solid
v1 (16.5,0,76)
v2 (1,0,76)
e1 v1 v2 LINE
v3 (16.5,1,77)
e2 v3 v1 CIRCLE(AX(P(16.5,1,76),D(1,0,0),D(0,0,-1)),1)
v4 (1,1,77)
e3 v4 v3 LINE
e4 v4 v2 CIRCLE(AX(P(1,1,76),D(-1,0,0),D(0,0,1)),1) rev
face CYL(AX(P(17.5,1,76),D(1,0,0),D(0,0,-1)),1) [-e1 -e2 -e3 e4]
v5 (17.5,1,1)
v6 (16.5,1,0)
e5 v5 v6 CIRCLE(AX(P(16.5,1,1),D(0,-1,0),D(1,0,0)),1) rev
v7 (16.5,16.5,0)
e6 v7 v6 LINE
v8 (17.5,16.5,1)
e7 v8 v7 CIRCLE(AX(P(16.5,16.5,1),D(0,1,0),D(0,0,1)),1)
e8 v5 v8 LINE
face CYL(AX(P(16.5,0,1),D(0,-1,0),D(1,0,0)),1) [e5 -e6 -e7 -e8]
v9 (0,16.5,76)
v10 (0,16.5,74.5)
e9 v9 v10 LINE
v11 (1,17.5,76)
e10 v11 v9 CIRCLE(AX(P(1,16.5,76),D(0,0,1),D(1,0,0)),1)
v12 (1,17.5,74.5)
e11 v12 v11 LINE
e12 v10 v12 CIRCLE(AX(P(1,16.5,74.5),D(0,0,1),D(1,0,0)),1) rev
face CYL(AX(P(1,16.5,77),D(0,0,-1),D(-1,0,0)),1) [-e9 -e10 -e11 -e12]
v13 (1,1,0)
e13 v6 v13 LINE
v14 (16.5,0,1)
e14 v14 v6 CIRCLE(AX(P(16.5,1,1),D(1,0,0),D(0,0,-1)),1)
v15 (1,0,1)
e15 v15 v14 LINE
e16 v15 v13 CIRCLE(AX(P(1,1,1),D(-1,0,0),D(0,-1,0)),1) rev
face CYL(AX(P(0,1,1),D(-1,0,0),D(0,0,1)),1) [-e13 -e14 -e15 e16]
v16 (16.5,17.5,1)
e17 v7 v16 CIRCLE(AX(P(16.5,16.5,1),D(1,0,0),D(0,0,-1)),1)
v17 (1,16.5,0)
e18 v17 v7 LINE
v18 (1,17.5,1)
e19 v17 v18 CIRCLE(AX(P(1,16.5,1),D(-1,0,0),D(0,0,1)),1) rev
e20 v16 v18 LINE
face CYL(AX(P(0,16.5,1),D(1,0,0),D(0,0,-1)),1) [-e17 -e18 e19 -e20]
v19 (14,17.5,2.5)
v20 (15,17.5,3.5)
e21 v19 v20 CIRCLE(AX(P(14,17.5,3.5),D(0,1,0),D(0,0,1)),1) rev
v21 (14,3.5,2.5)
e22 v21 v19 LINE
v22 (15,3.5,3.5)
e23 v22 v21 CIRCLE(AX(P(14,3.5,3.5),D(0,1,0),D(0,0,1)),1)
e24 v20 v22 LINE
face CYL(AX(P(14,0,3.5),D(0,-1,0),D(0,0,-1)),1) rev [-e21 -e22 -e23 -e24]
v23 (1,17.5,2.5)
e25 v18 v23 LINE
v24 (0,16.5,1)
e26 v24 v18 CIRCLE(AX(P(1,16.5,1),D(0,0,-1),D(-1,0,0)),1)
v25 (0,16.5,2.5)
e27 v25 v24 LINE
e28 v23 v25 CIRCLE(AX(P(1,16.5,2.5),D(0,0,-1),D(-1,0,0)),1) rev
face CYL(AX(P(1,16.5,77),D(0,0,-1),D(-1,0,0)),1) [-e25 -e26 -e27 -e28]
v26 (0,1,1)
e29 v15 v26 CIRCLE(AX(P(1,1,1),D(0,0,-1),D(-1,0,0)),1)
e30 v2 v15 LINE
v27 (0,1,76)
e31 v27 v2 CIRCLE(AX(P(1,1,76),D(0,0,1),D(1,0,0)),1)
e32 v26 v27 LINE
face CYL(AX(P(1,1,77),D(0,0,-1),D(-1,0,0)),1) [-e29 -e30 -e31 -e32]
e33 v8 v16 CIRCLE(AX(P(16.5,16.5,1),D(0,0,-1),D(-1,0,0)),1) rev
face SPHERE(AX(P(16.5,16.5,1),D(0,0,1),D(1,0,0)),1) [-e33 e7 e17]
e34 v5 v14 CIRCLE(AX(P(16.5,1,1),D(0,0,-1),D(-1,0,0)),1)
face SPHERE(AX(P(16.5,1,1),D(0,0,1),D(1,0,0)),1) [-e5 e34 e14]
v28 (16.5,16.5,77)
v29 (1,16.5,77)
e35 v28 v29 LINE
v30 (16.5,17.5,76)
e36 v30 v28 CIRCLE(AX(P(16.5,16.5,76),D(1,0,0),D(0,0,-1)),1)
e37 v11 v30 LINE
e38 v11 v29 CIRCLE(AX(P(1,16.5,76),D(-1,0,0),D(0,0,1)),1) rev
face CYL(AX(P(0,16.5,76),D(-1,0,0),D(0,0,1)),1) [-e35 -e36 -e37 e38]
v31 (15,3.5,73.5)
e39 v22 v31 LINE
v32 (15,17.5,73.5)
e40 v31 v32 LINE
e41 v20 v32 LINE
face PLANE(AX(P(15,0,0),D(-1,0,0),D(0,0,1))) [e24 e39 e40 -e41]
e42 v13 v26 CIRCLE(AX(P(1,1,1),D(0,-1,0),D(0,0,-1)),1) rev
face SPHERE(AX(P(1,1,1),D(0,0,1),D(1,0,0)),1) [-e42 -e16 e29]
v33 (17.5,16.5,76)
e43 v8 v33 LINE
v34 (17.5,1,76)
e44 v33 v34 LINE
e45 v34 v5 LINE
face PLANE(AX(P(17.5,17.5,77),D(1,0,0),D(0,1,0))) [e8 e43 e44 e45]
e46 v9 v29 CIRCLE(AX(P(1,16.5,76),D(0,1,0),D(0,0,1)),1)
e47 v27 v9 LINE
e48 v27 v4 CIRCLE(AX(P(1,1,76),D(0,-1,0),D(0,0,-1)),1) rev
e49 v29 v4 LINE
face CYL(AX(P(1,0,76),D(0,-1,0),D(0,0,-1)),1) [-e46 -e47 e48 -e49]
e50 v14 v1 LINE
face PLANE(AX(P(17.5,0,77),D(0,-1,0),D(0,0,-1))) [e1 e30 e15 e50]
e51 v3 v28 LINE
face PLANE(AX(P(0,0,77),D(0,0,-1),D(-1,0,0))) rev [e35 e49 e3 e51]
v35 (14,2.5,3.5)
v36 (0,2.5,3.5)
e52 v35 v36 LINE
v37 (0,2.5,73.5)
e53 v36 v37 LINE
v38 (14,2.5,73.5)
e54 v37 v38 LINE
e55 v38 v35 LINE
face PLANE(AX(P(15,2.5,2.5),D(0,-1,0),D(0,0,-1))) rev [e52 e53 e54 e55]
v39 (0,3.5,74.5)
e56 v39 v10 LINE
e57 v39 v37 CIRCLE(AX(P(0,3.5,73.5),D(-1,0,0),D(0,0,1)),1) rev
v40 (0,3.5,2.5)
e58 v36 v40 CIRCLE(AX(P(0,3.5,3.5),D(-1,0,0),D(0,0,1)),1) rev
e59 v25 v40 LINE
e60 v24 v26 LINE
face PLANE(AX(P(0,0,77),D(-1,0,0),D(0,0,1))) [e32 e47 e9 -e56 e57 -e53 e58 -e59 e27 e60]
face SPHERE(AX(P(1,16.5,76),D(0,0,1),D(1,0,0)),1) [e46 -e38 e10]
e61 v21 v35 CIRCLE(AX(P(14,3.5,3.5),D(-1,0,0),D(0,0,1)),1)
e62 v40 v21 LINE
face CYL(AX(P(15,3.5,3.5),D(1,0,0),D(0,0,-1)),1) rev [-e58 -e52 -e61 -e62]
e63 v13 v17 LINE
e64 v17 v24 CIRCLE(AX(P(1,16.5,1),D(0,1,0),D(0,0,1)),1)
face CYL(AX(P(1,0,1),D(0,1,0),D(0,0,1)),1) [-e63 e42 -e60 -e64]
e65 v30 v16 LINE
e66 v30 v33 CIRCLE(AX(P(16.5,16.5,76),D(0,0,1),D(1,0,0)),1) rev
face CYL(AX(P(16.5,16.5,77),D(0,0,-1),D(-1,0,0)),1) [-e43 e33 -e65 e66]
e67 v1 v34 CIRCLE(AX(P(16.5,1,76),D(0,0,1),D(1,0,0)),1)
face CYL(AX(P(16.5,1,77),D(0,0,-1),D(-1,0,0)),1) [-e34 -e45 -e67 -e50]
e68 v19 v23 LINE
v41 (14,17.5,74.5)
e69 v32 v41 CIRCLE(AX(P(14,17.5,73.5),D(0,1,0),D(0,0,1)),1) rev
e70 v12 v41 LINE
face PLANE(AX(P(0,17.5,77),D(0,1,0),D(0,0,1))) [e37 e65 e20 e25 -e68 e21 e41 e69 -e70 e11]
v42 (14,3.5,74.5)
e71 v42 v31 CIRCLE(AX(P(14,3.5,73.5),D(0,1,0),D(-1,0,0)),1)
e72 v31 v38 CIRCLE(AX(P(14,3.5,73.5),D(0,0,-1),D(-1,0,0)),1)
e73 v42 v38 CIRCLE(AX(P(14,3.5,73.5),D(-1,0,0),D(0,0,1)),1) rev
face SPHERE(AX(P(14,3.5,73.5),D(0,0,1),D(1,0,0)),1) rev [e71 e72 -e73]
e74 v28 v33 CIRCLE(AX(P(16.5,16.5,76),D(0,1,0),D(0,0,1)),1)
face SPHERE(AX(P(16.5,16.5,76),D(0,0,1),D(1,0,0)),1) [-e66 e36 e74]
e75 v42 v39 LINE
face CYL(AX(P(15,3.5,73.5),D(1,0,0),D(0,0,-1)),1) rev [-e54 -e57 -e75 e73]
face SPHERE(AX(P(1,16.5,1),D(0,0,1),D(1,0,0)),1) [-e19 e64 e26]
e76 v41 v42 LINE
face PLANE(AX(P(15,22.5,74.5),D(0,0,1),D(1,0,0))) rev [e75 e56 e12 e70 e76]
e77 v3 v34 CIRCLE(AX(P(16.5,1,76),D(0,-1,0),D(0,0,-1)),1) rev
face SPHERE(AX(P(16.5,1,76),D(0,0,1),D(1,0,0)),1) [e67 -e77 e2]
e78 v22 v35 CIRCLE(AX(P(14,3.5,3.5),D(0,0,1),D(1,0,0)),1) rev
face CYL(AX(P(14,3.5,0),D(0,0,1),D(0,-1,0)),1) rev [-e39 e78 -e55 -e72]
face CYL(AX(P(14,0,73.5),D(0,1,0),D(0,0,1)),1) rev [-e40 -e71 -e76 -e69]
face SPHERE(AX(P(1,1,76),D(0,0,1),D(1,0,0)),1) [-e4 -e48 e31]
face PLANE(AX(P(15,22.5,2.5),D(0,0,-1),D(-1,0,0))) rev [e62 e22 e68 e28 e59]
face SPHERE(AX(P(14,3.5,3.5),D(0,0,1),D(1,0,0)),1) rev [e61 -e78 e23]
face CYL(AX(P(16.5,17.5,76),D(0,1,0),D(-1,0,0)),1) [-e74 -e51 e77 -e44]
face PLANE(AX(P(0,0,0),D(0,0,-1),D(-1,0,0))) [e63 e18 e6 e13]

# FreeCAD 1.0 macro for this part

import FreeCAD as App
import Part
import Sketcher


def edges_at(feature, points):
    """Names of the edges that pass closest to the given points."""
    edges = feature.Shape.Edges
    near = lambda p: min(range(len(edges)), key=lambda i: edges[i].distToShape(Part.Vertex(*p))[0])
    return sorted({f"Edge{near(p) + 1}" for p in points})


def add_polygon(sketch, points):
    """Adds a closed chain of lines whose ends are joined by coincident constraints."""
    first, n = sketch.GeometryCount, len(points)
    for a, b in zip(points, points[1:] + points[:1]):
        sketch.addGeometry(Part.LineSegment(App.Vector(*a, 0), App.Vector(*b, 0)), False)
    for i in range(n):
        sketch.addConstraint(Sketcher.Constraint("Coincident", first + i, 2, first + (i + 1) % n, 1))

doc = App.newDocument("Part")
body = doc.addObject("PartDesign::Body", "Body")

# Sketch on XY plane
sketch1 = body.newObject("Sketcher::SketchObject", "Sketch")
sketch1.AttachmentSupport = (doc.getObject("XY_Plane"), [""])
sketch1.MapMode = "FlatFace"
add_polygon(sketch1, [(0, 17.5), (0, 0), (17.5, 0), (17.5, 17.5)])  # lines 0-3
sketch1.addConstraint([
    Sketcher.Constraint("Vertical", 0),
    Sketcher.Constraint("Horizontal", 1),
    Sketcher.Constraint("Vertical", 2),
    Sketcher.Constraint("Horizontal", 3),
    Sketcher.Constraint("Coincident", 0, 2, -1, 1),
    Sketcher.Constraint("Equal", 3, 0),
    Sketcher.Constraint("DistanceX", 1, 1, 1, 2, 17.5),
])
pad1 = body.newObject("PartDesign::Pad", "Pad")
pad1.Profile = sketch1
pad1.Length = 77

# Sketch on YZ plane
sketch2 = body.newObject("Sketcher::SketchObject", "Sketch001")
sketch2.AttachmentSupport = (doc.getObject("YZ_Plane"), [""])
sketch2.MapMode = "FlatFace"
add_polygon(sketch2, [(22.5, 2.5), (2.5, 2.5), (2.5, 74.5), (22.5, 74.5)])  # lines 0-3
sketch2.addConstraint([
    Sketcher.Constraint("Horizontal", 0),
    Sketcher.Constraint("Vertical", 1),
    Sketcher.Constraint("Horizontal", 2),
    Sketcher.Constraint("Vertical", 3),
    Sketcher.Constraint("DistanceX", 0, 2, 0, 1, 20.0),
    Sketcher.Constraint("DistanceY", 1, 1, 1, 2, 72.0),
    Sketcher.Constraint("DistanceX", -1, 1, 0, 2, 2.5),
    Sketcher.Constraint("DistanceY", -1, 1, 0, 2, 2.5),
])
pocket1 = body.newObject("PartDesign::Pocket", "Pocket")
pocket1.Profile = sketch2
pocket1.Length = 15
pocket1.Reversed = True
doc.recompute()

fillet = body.newObject("PartDesign::Fillet", "Fillet")
fillet.Base = (pocket1, edges_at(pocket1, [
    (8.75, 17.5, 77),
    (0, 17.5, 1.25),
    (17.5, 8.75, 77),
    (15, 10, 2.5),
    (7.5, 2.5, 2.5),
    (15, 10, 74.5),
    (15, 2.5, 38.5),
    (7.5, 2.5, 74.5),
    (8.75, 0, 77),
    (17.5, 8.75, 0),
    (8.75, 17.5, 0),
    (0, 8.75, 0),
    (8.75, 0, 0),
    (17.5, 0, 38.5),
    (17.5, 17.5, 38.5),
    (0, 17.5, 75.75),
    (0, 0, 38.5),
    (0, 8.75, 77),
]))
fillet.Radius = 1

doc.recompute()
